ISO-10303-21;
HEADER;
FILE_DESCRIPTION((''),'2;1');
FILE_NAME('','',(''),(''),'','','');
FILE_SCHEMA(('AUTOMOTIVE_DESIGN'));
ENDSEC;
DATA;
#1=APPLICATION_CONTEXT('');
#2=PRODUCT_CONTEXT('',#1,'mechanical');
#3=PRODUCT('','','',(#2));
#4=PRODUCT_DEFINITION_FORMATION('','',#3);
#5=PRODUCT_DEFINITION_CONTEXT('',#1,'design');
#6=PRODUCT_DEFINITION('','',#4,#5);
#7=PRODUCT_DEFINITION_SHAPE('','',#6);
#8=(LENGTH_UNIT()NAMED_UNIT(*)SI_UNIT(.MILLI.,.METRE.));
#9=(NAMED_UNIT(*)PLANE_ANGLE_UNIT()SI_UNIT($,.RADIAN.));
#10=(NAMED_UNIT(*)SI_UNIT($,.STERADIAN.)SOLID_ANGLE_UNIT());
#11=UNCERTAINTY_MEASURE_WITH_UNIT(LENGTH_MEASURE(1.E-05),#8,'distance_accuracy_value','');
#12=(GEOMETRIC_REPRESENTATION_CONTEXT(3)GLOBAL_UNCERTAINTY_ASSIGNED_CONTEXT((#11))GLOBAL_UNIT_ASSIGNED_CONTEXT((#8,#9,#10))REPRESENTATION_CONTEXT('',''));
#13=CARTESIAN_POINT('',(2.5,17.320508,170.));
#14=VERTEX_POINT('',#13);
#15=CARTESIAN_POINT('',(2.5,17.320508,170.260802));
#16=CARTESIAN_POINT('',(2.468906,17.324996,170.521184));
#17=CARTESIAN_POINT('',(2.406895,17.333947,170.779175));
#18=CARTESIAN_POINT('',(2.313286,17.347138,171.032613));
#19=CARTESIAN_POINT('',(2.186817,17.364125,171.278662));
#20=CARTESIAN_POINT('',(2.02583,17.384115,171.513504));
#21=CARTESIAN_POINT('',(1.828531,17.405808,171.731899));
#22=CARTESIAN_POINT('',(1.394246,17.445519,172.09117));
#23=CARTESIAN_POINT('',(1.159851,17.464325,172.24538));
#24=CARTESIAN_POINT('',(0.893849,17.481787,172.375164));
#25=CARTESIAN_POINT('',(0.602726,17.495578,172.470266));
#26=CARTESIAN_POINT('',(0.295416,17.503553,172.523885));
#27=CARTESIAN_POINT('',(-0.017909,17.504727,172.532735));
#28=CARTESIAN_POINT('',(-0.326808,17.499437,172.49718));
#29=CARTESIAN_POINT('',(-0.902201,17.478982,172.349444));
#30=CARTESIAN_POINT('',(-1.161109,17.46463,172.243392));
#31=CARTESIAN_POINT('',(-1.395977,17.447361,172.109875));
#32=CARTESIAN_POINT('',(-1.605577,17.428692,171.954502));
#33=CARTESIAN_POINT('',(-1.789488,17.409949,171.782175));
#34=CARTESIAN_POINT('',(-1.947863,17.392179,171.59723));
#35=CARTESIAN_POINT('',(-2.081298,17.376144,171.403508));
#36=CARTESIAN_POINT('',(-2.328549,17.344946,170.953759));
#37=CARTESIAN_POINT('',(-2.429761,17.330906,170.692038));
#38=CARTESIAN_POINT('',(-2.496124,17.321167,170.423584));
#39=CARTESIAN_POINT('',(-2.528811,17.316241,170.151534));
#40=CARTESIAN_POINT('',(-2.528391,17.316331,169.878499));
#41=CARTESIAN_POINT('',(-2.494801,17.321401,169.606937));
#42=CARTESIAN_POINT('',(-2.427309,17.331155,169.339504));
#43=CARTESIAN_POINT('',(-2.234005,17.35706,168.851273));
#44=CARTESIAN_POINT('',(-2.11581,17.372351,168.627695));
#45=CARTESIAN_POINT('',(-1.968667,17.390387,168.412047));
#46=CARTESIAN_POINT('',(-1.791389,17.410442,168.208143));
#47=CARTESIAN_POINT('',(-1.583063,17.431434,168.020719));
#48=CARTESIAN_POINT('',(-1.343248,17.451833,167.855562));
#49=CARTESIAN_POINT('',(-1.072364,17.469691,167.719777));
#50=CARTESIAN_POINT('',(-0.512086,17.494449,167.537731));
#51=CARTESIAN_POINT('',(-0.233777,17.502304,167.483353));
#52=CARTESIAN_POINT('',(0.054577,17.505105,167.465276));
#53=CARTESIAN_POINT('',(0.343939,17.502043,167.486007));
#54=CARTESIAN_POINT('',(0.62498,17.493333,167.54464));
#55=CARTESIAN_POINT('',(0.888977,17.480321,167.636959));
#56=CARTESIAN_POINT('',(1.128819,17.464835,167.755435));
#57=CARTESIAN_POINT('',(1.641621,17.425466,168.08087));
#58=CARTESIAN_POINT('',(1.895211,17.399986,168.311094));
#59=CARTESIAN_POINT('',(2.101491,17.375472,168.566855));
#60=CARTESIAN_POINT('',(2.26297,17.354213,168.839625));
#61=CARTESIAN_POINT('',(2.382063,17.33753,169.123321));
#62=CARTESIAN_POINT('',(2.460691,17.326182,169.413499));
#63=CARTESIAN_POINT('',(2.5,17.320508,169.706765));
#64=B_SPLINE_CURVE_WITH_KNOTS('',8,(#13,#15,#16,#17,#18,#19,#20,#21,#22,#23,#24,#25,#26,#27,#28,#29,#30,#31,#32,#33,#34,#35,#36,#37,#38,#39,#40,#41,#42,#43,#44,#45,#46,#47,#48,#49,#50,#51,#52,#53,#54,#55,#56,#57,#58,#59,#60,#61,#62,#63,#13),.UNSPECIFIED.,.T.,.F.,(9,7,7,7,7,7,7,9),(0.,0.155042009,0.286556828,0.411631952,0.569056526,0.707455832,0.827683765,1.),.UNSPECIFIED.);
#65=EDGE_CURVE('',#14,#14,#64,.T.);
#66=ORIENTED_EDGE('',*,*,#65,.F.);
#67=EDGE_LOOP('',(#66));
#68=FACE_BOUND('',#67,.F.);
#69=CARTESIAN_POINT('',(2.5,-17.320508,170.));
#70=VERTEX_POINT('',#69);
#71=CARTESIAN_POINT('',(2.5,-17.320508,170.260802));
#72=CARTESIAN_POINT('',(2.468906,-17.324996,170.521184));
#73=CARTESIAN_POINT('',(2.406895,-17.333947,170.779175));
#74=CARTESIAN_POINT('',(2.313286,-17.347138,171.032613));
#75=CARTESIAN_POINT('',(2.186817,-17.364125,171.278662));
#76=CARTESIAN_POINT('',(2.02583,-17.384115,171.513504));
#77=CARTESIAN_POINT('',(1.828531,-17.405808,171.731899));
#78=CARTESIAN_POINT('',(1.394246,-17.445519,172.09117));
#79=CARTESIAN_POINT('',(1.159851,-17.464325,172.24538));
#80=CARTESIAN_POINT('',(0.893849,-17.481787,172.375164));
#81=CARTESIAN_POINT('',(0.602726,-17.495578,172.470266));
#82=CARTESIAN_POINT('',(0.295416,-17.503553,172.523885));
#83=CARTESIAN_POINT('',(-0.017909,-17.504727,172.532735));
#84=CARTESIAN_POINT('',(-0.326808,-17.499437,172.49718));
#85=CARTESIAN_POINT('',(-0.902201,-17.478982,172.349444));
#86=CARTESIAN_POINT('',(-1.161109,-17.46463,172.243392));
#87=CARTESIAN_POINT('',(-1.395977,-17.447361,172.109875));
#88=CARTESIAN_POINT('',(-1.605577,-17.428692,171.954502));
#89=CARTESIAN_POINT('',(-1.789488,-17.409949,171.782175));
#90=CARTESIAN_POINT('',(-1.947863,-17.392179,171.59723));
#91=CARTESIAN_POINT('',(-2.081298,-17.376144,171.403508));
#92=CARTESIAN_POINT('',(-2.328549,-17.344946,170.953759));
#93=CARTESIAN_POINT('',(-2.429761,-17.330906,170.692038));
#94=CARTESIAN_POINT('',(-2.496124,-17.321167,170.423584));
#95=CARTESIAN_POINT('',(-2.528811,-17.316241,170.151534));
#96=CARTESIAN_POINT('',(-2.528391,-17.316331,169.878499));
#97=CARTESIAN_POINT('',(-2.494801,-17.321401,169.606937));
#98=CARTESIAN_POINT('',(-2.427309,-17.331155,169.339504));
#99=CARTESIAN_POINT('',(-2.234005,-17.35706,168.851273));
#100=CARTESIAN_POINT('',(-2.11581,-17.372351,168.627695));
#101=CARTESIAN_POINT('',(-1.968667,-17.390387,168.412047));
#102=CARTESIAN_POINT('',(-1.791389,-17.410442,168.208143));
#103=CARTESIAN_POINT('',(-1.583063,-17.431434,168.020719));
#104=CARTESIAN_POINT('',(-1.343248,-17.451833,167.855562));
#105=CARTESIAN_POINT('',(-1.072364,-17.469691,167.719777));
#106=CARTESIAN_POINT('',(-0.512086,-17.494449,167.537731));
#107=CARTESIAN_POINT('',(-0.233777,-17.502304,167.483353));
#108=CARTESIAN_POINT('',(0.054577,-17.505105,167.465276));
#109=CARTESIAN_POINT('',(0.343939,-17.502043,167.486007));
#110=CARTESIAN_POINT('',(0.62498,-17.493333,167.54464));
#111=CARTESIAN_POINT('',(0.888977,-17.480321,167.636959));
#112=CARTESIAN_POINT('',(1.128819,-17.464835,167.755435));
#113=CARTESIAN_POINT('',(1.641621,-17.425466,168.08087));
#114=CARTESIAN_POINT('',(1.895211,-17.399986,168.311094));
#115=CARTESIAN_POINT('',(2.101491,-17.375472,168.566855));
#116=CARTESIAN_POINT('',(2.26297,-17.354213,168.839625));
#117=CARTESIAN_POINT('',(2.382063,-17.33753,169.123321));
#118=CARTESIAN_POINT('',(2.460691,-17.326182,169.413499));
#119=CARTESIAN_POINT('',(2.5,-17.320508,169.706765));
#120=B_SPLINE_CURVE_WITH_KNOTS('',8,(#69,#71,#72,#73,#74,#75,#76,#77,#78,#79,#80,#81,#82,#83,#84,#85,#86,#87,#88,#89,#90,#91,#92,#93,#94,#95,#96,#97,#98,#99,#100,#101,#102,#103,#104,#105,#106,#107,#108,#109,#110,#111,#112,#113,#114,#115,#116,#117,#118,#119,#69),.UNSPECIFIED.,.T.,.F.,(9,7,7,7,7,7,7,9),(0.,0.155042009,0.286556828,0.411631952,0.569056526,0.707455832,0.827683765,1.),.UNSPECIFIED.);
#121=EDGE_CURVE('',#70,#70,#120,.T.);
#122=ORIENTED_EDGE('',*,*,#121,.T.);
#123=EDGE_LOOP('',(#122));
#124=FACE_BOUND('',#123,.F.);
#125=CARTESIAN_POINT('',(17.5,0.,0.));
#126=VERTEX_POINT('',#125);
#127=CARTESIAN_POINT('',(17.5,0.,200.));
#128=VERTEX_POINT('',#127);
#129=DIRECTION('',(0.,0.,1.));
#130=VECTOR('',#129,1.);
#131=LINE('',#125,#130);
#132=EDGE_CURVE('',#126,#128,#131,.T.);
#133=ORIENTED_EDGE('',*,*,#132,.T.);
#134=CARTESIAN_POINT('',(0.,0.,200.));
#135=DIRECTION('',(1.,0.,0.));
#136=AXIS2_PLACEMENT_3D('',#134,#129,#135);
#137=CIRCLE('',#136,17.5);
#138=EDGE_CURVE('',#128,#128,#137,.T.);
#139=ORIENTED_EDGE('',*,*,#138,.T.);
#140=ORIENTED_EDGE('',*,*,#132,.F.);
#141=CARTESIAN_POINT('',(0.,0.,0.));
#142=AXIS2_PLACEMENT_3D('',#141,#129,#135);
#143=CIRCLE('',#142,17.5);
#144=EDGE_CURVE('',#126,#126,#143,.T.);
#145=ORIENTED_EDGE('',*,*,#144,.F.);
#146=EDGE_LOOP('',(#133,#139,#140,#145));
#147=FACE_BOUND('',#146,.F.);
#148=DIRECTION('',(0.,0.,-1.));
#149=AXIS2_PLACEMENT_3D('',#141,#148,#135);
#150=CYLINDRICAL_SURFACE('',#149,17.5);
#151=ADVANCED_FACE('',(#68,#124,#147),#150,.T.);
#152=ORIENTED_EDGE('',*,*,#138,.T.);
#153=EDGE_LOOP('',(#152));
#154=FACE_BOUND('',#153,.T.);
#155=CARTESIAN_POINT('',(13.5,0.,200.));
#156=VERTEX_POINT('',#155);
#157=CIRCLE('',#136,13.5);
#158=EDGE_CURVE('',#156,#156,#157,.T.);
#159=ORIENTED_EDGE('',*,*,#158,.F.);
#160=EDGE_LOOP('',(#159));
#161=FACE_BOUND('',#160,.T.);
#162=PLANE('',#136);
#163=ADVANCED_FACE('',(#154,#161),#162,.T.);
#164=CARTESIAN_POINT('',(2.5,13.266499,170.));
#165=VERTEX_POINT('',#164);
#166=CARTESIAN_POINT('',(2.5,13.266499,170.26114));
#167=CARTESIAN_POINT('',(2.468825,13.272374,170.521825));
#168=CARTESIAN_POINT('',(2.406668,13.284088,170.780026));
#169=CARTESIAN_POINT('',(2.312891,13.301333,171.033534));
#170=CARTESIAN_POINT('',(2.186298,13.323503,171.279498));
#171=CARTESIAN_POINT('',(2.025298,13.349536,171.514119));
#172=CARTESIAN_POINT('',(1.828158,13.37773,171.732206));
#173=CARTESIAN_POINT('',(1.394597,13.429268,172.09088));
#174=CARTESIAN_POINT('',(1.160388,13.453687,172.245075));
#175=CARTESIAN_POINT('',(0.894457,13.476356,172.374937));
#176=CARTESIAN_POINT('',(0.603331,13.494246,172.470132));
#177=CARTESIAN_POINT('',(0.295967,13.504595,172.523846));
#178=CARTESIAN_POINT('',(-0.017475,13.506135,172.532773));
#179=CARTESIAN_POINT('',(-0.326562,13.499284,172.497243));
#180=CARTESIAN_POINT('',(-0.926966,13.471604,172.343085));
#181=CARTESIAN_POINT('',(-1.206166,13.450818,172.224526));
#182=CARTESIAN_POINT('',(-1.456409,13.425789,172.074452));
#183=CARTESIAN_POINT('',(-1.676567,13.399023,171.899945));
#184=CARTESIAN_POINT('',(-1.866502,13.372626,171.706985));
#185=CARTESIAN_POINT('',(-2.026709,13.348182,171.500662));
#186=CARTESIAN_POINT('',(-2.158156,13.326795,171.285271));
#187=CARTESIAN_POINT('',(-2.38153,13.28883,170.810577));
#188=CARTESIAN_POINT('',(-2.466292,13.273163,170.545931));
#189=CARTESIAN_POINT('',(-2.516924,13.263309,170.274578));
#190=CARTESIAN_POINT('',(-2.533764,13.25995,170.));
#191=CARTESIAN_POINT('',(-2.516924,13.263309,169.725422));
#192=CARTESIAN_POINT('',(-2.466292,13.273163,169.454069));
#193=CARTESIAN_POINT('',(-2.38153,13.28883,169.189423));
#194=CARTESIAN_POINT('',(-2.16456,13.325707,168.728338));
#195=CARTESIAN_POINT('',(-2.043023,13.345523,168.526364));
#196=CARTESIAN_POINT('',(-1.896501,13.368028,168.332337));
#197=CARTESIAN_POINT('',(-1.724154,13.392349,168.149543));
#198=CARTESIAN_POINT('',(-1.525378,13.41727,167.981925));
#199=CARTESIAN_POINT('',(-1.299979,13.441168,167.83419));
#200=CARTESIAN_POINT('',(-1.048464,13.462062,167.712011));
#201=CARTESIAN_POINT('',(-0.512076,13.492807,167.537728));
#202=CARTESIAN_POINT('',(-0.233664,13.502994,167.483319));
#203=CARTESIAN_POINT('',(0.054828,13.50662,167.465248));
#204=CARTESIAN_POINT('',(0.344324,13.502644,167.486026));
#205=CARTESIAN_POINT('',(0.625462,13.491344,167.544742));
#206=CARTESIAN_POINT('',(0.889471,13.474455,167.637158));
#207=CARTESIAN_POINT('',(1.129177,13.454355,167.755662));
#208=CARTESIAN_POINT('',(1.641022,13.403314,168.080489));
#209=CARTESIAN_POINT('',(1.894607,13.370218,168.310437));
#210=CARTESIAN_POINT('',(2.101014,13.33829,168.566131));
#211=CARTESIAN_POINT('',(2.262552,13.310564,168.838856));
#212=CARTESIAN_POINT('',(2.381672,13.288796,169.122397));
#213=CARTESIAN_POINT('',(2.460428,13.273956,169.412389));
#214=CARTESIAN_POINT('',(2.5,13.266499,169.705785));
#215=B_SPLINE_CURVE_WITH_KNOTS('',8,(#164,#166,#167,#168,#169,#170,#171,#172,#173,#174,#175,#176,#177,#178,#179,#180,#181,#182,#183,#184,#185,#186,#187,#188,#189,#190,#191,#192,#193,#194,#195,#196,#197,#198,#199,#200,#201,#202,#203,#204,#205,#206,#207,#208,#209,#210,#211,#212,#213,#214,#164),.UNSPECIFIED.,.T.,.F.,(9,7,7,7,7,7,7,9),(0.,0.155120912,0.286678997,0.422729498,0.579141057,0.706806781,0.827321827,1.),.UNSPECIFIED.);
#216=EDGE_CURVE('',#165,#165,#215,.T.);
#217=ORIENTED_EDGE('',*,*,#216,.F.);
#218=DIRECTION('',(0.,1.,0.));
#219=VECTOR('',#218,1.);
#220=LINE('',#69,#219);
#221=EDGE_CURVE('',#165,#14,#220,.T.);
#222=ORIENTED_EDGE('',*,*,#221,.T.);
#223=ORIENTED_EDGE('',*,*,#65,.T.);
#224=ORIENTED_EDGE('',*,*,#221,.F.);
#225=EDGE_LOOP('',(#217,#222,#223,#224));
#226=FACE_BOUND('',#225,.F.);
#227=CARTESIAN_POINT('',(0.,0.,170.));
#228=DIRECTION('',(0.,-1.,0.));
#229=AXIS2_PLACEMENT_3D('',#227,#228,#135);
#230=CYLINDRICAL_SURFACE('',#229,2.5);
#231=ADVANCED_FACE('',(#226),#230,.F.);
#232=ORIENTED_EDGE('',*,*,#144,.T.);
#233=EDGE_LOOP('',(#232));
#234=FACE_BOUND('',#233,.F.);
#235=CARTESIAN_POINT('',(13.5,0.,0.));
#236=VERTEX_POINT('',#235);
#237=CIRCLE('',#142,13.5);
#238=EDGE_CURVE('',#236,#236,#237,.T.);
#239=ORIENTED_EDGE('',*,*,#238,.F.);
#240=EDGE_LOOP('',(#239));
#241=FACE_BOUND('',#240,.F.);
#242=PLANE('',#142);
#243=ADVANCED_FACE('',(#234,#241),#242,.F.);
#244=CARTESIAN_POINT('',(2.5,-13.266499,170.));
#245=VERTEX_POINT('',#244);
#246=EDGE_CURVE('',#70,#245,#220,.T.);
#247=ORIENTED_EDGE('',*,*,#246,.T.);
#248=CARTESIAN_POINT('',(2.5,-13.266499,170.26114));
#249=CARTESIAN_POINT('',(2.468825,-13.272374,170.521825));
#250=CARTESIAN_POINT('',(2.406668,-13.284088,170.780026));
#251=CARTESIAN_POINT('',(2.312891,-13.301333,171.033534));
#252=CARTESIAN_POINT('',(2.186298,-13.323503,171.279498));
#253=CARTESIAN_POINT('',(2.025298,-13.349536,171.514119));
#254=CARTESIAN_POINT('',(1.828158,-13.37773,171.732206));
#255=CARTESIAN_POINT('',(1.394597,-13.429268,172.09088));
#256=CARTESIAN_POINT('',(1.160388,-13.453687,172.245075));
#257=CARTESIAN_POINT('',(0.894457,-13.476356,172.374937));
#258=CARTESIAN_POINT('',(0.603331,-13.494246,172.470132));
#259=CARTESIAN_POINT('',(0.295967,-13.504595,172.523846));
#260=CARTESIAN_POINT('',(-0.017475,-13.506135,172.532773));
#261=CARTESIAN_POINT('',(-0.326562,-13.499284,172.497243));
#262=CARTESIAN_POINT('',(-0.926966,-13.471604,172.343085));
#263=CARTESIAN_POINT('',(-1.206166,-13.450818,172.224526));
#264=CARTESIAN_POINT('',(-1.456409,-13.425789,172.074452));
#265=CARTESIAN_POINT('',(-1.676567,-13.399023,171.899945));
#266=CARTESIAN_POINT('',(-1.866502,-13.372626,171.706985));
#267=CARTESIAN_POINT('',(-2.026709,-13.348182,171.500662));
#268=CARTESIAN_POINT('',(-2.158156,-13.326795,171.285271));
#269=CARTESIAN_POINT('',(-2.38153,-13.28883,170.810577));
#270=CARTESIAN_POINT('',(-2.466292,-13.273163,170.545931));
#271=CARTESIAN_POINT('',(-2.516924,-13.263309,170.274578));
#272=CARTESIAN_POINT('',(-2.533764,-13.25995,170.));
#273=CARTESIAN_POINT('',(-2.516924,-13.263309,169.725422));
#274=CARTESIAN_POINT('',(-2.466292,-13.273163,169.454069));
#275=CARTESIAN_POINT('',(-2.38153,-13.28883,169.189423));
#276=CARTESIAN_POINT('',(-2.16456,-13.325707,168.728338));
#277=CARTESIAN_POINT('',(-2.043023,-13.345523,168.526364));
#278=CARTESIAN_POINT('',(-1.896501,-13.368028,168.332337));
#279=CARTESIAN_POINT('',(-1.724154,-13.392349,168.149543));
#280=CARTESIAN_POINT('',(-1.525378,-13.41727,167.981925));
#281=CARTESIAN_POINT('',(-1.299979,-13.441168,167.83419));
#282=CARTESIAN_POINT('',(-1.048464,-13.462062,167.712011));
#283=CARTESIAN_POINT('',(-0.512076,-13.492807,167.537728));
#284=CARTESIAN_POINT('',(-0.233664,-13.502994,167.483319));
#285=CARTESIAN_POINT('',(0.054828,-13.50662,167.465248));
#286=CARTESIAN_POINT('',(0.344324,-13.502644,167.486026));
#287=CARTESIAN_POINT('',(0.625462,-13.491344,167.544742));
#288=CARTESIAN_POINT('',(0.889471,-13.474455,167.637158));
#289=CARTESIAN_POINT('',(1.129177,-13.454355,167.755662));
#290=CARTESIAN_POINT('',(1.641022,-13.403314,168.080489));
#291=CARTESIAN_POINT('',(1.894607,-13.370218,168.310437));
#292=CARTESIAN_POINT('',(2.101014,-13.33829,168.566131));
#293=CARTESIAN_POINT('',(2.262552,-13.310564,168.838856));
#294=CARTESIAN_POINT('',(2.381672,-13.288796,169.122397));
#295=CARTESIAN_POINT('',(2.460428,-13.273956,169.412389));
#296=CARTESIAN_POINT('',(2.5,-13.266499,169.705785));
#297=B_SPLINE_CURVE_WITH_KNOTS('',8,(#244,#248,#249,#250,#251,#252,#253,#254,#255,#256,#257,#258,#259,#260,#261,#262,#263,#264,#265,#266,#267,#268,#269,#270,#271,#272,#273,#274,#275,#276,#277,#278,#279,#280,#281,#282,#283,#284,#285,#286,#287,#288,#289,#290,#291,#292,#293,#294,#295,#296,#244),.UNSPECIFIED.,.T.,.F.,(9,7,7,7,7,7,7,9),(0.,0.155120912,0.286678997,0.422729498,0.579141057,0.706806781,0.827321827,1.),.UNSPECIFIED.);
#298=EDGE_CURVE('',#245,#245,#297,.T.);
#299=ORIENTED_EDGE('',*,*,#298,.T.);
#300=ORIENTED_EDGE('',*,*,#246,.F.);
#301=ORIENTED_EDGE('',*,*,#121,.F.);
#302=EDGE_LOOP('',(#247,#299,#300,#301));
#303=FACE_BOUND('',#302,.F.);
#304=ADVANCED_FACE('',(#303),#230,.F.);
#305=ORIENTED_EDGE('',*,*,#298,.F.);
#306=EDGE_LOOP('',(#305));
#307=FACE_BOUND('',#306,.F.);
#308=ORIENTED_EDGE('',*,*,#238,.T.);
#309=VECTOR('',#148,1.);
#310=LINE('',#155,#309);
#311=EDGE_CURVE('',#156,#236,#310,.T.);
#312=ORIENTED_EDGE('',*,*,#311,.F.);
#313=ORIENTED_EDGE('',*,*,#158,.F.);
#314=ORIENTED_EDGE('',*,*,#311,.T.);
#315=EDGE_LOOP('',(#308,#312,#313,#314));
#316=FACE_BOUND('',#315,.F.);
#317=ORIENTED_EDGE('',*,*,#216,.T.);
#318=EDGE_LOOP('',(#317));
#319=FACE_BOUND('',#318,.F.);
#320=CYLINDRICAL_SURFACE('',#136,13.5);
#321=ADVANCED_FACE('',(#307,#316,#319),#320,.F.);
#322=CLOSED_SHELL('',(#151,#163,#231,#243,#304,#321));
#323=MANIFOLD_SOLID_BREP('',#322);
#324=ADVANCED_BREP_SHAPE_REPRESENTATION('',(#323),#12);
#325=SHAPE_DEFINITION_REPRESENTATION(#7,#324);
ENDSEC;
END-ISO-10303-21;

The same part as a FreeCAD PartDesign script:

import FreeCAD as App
import Part
import Sketcher

V = App.Vector
Q = App.Units.Quantity

doc = App.newDocument("Part")
body = doc.addObject("PartDesign::Body", "Body")

# Sketch on XY plane
sketch1 = body.newObject("Sketcher::SketchObject", "Sketch")
sketch1.AttachmentSupport = (doc.getObject("XY_Plane"), [""])
sketch1.MapMode = "FlatFace"
sketch1.addGeometry(Part.Circle(V(0, 0, 0), V(0, 0, 1), 17.5), False)
sketch1.addConstraint([
    Sketcher.Constraint("Coincident", 0, 3, -1, 1),
    Sketcher.Constraint("Diameter", 0, Q("35 mm")),
])
pad1 = body.newObject("PartDesign::Pad", "Pad")
pad1.Profile = sketch1
pad1.Length = 200

# Sketch on XZ plane
sketch2 = body.newObject("Sketcher::SketchObject", "Sketch001")
sketch2.AttachmentSupport = (doc.getObject("XZ_Plane"), [""])
sketch2.MapMode = "FlatFace"
sketch2.addGeometry(Part.Circle(V(0, 170, 0), V(0, 0, 1), 2.5), False)
sketch2.addConstraint([
    Sketcher.Constraint("PointOnObject", 0, 3, -2),
    Sketcher.Constraint("Diameter", 0, Q("5 mm")),
    Sketcher.Constraint("DistanceY", -1, 1, 0, 3, Q("170 mm")),
])
pocket1 = body.newObject("PartDesign::Pocket", "Pocket")
pocket1.Profile = sketch2
pocket1.Type = "ThroughAll"
pocket1.Midplane = True

# Sketch on XY plane
sketch3 = body.newObject("Sketcher::SketchObject", "Sketch002")
sketch3.AttachmentSupport = (doc.getObject("XY_Plane"), [""])
sketch3.MapMode = "FlatFace"
sketch3.AttachmentOffset = App.Placement(V(0, 0, 200), App.Rotation())
sketch3.addGeometry(Part.Circle(V(0, 0, 0), V(0, 0, 1), 13.5), False)
sketch3.addConstraint([
    Sketcher.Constraint("Coincident", 0, 3, -1, 1),
    Sketcher.Constraint("Diameter", 0, Q("27 mm")),
])
pocket2 = body.newObject("PartDesign::Pocket", "Pocket001")
pocket2.Profile = sketch3
pocket2.Length = 1022

doc.recompute()
